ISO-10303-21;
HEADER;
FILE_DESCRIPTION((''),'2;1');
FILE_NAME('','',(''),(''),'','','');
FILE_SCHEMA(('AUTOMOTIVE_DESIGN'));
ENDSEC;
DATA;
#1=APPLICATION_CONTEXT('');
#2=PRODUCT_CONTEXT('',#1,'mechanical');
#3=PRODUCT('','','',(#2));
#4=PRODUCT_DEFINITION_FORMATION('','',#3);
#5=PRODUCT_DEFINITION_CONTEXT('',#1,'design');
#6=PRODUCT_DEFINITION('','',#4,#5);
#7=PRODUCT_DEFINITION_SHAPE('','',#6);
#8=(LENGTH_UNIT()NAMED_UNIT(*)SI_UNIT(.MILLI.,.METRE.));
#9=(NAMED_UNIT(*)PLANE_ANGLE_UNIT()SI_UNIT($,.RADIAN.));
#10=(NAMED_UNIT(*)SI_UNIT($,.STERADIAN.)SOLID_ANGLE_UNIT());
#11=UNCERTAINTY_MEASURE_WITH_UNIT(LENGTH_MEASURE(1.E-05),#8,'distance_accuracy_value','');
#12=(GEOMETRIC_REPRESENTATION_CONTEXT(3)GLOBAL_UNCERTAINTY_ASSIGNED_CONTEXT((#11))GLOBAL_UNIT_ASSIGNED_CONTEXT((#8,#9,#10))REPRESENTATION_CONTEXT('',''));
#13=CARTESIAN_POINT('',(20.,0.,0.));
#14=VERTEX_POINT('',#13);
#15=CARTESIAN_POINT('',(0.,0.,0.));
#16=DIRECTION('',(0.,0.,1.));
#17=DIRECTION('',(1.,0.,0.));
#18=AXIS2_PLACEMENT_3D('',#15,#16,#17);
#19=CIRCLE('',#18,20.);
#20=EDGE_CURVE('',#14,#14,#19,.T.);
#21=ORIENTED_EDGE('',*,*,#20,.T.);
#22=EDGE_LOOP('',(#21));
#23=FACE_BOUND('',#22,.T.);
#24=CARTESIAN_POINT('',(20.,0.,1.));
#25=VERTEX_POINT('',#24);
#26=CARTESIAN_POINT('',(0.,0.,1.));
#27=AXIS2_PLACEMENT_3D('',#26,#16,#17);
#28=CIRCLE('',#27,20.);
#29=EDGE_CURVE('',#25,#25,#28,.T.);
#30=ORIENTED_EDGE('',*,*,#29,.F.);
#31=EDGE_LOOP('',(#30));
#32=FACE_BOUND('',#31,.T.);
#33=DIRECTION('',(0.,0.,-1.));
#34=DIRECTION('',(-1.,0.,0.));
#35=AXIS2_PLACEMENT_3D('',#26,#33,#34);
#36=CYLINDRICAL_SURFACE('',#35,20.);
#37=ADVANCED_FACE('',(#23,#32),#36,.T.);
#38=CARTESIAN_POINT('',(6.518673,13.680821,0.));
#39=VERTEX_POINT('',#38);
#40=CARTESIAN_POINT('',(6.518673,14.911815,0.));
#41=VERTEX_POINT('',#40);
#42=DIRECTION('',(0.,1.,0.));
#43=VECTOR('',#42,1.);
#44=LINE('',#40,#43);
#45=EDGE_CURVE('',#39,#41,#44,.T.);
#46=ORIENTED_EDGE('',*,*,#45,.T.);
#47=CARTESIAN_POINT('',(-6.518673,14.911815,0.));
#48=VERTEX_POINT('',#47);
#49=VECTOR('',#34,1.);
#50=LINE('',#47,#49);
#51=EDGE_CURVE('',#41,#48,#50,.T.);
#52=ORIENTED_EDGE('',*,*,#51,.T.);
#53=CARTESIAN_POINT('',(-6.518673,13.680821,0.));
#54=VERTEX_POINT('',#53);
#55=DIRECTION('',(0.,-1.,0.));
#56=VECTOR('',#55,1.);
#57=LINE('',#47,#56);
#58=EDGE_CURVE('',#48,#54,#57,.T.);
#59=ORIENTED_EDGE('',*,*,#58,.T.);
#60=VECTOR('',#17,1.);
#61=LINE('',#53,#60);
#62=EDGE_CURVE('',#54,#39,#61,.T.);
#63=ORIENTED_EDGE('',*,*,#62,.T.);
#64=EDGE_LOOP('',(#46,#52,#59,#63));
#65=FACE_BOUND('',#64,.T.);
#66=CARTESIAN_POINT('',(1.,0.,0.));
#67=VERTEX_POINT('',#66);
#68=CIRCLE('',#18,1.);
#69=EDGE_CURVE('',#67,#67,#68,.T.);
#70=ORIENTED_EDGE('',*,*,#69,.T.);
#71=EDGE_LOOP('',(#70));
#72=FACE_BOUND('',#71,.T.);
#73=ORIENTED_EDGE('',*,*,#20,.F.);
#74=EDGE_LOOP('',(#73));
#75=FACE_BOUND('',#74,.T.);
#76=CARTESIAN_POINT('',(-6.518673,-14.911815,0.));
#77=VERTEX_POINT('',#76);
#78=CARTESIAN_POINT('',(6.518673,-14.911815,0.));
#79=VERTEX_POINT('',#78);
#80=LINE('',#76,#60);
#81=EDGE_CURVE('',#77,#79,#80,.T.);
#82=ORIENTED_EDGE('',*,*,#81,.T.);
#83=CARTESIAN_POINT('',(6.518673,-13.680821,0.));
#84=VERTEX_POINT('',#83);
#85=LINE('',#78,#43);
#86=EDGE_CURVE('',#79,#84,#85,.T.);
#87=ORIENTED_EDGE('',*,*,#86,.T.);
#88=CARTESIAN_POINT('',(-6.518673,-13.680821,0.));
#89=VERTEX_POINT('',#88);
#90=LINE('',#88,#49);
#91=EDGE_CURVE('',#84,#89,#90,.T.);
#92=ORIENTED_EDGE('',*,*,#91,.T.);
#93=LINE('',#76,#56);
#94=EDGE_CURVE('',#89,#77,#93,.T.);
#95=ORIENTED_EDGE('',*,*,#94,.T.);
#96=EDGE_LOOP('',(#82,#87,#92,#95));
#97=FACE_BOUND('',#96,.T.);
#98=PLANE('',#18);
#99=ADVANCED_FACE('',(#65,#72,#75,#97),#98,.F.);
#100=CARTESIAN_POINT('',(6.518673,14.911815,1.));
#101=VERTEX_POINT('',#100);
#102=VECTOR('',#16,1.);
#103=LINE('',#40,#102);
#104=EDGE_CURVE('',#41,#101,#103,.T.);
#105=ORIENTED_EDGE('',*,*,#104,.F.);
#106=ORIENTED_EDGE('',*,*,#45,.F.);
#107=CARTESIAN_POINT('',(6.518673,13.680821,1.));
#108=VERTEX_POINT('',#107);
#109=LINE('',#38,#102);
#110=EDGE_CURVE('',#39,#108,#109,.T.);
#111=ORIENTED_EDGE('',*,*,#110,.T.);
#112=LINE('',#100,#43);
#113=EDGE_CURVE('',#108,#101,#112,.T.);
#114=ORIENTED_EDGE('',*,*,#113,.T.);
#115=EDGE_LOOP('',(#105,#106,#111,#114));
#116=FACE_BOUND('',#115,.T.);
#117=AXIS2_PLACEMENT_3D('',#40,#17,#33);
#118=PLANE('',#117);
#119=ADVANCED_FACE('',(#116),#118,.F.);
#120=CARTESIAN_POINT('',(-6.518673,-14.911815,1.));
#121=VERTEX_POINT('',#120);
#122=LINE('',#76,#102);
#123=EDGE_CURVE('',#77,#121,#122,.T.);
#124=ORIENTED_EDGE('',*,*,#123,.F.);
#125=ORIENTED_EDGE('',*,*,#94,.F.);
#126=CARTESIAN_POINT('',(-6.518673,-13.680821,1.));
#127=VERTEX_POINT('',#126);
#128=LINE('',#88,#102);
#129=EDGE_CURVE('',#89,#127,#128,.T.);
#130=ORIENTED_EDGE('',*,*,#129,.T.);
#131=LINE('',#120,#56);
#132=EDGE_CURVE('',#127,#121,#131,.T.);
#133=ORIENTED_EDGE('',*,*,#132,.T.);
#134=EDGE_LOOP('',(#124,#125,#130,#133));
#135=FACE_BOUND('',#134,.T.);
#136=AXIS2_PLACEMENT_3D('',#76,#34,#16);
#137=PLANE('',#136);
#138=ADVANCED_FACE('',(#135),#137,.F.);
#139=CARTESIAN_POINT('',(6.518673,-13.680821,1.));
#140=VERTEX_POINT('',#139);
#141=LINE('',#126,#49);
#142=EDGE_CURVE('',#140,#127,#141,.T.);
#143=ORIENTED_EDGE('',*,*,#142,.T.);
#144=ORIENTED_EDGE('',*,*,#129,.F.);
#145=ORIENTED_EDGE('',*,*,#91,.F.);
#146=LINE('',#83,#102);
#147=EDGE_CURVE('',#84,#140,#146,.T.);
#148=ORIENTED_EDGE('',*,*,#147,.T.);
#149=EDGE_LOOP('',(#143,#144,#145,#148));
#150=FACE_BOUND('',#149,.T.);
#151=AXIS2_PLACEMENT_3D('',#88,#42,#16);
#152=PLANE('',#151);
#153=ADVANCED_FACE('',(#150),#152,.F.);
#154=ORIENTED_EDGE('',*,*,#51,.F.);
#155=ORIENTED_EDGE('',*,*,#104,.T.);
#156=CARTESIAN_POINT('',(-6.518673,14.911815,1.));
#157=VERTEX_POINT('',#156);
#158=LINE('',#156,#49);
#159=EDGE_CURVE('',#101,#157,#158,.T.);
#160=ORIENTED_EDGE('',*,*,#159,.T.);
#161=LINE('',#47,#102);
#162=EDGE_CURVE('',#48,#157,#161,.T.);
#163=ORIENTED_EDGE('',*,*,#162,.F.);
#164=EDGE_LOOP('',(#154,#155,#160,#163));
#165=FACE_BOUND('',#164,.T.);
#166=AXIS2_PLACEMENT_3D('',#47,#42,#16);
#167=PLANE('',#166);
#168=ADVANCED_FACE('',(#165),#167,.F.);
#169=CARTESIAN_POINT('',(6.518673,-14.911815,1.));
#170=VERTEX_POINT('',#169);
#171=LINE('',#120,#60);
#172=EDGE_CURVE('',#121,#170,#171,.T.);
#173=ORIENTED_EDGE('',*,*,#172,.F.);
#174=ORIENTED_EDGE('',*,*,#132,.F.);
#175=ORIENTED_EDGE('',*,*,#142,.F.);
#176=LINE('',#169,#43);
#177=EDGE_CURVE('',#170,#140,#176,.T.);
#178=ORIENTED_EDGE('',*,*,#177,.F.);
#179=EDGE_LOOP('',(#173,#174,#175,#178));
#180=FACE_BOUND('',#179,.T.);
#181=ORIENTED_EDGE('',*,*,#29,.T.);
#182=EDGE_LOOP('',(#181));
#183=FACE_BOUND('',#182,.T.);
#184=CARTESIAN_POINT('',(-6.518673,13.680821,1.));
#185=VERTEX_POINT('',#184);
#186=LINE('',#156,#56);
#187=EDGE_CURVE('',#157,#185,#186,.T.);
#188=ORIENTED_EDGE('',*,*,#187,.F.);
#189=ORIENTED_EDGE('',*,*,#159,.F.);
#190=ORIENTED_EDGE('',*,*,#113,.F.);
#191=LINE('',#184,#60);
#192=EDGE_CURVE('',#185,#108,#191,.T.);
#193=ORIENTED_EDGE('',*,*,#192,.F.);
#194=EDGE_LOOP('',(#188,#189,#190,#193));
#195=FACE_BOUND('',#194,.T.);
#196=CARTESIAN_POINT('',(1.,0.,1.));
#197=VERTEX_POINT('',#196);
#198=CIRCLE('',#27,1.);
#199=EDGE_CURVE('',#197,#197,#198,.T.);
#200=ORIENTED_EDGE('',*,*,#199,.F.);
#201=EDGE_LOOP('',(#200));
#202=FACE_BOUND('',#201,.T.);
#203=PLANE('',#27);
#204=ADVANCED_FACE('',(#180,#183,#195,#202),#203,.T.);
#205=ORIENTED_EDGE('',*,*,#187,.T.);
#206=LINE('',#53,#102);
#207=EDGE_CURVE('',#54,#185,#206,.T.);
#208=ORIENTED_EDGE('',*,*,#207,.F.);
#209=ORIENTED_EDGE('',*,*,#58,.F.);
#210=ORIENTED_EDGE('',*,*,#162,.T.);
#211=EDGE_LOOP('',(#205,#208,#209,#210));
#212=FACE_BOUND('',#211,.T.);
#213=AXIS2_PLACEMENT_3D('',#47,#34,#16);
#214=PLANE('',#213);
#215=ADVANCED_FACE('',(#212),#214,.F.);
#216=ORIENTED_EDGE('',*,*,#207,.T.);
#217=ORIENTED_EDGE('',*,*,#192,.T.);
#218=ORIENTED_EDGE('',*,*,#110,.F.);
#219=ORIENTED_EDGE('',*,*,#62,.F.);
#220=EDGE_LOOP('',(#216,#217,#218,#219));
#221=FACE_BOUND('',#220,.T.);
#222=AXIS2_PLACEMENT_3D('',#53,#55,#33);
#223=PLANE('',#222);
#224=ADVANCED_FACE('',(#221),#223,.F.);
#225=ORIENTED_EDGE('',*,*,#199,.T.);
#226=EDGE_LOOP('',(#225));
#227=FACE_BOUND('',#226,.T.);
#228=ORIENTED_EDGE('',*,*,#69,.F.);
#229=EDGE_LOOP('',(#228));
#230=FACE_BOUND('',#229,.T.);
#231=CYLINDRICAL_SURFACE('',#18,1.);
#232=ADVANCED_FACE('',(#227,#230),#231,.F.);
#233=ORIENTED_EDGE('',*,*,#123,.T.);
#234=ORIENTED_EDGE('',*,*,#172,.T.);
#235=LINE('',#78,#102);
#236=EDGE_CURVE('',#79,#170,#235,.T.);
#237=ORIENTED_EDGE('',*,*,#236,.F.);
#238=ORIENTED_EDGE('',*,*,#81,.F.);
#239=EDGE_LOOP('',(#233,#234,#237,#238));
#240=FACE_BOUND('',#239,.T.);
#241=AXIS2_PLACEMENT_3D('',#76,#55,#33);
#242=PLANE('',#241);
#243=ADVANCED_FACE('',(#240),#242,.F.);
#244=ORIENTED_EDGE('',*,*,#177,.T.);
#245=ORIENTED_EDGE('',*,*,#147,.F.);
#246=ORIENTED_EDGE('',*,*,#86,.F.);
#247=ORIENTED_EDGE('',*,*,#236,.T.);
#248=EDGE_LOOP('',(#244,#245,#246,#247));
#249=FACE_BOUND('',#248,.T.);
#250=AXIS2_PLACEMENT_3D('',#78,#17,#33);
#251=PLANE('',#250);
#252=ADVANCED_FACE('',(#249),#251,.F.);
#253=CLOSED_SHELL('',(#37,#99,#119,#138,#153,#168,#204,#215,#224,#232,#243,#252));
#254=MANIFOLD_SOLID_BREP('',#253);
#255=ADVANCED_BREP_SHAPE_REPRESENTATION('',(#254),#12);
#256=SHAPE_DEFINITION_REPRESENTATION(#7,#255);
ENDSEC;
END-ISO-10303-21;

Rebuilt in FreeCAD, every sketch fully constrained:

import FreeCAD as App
import Part
import Sketcher
Q = App.Units.Quantity

doc = App.newDocument("Part")
body = doc.addObject("PartDesign::Body", "Body")

# Sketch on XY plane
sketch1 = doc.addObject("Sketcher::SketchObject", "Sketch")
body.addObject(sketch1)
sketch1.AttachmentSupport = (doc.XY_Plane, [""])
sketch1.MapMode = "FlatFace"
sketch1.addGeometry(Part.Circle(App.Vector(0, 0, 0), App.Vector(0, 0, 1), 20), False)
sketch1.addConstraint(Sketcher.Constraint("Coincident", 0, 3, -1, 1))
sketch1.addConstraint(Sketcher.Constraint("Diameter", 0, Q("40 mm")))
pad1 = doc.addObject("PartDesign::Pad", "Pad")
body.addObject(pad1)
pad1.Profile = sketch1
pad1.Length = 1

# Sketch on XY plane
sketch2 = doc.addObject("Sketcher::SketchObject", "Sketch001")
body.addObject(sketch2)
sketch2.AttachmentSupport = (doc.XY_Plane, [""])
sketch2.MapMode = "FlatFace"
sketch2.AttachmentOffset = App.Placement(App.Vector(0, 0, 1), App.Rotation())
sketch2.addGeometry(Part.LineSegment(App.Vector(-6.5, -13.7, 0), App.Vector(-6.5, -14.9, 0)), False)
sketch2.addGeometry(Part.LineSegment(App.Vector(-6.5, -14.9, 0), App.Vector(6.5, -14.9, 0)), False)
sketch2.addGeometry(Part.LineSegment(App.Vector(6.5, -14.9, 0), App.Vector(6.5, -13.7, 0)), False)
sketch2.addGeometry(Part.LineSegment(App.Vector(6.5, -13.7, 0), App.Vector(-6.5, -13.7, 0)), False)
sketch2.addGeometry(Part.LineSegment(App.Vector(-6.5, 14.9, 0), App.Vector(-6.5, 13.7, 0)), False)
sketch2.addGeometry(Part.LineSegment(App.Vector(-6.5, 13.7, 0), App.Vector(6.5, 13.7, 0)), False)
sketch2.addGeometry(Part.LineSegment(App.Vector(6.5, 13.7, 0), App.Vector(6.5, 14.9, 0)), False)
sketch2.addGeometry(Part.LineSegment(App.Vector(6.5, 14.9, 0), App.Vector(-6.5, 14.9, 0)), False)
sketch2.addConstraint(Sketcher.Constraint("Coincident", 0, 2, 1, 1))
sketch2.addConstraint(Sketcher.Constraint("Coincident", 1, 2, 2, 1))
sketch2.addConstraint(Sketcher.Constraint("Coincident", 2, 2, 3, 1))
sketch2.addConstraint(Sketcher.Constraint("Coincident", 3, 2, 0, 1))
sketch2.addConstraint(Sketcher.Constraint("Coincident", 4, 2, 5, 1))
sketch2.addConstraint(Sketcher.Constraint("Coincident", 5, 2, 6, 1))
sketch2.addConstraint(Sketcher.Constraint("Coincident", 6, 2, 7, 1))
sketch2.addConstraint(Sketcher.Constraint("Coincident", 7, 2, 4, 1))
sketch2.addConstraint(Sketcher.Constraint("Vertical", 0))
sketch2.addConstraint(Sketcher.Constraint("Horizontal", 1))
sketch2.addConstraint(Sketcher.Constraint("Vertical", 2))
sketch2.addConstraint(Sketcher.Constraint("Horizontal", 3))
sketch2.addConstraint(Sketcher.Constraint("Vertical", 4))
sketch2.addConstraint(Sketcher.Constraint("Horizontal", 5))
sketch2.addConstraint(Sketcher.Constraint("Vertical", 6))
sketch2.addConstraint(Sketcher.Constraint("Horizontal", 7))
sketch2.addConstraint(Sketcher.Constraint("Symmetric", 2, 2, 4, 2, -1, 1))
sketch2.addConstraint(Sketcher.Constraint("Symmetric", 0, 2, 6, 2, -1, 1))
sketch2.addConstraint(Sketcher.Constraint("Vertical", 3, 2, 4, 2))
sketch2.addConstraint(Sketcher.Constraint("DistanceX", 1, 1, 1, 2, Q("13.037347 mm")))
sketch2.addConstraint(Sketcher.Constraint("DistanceY", 0, 2, 0, 1, Q("1.230994 mm")))
sketch2.addConstraint(Sketcher.Constraint("DistanceY", 2, 2, -1, 1, Q("13.680821 mm")))
pocket1 = doc.addObject("PartDesign::Pocket", "Pocket")
body.addObject(pocket1)
pocket1.Profile = sketch2
pocket1.Length = 1

# Sketch on XY plane
sketch3 = doc.addObject("Sketcher::SketchObject", "Sketch002")
body.addObject(sketch3)
sketch3.AttachmentSupport = (doc.XY_Plane, [""])
sketch3.MapMode = "FlatFace"
sketch3.AttachmentOffset = App.Placement(App.Vector(0, 0, 1), App.Rotation())
sketch3.addGeometry(Part.Circle(App.Vector(0, 0, 0), App.Vector(0, 0, 1), 1), False)
sketch3.addConstraint(Sketcher.Constraint("Coincident", 0, 3, -1, 1))
sketch3.addConstraint(Sketcher.Constraint("Diameter", 0, Q("2 mm")))
pocket2 = doc.addObject("PartDesign::Pocket", "Pocket001")
body.addObject(pocket2)
pocket2.Profile = sketch3
pocket2.Length = 1

doc.recompute()
